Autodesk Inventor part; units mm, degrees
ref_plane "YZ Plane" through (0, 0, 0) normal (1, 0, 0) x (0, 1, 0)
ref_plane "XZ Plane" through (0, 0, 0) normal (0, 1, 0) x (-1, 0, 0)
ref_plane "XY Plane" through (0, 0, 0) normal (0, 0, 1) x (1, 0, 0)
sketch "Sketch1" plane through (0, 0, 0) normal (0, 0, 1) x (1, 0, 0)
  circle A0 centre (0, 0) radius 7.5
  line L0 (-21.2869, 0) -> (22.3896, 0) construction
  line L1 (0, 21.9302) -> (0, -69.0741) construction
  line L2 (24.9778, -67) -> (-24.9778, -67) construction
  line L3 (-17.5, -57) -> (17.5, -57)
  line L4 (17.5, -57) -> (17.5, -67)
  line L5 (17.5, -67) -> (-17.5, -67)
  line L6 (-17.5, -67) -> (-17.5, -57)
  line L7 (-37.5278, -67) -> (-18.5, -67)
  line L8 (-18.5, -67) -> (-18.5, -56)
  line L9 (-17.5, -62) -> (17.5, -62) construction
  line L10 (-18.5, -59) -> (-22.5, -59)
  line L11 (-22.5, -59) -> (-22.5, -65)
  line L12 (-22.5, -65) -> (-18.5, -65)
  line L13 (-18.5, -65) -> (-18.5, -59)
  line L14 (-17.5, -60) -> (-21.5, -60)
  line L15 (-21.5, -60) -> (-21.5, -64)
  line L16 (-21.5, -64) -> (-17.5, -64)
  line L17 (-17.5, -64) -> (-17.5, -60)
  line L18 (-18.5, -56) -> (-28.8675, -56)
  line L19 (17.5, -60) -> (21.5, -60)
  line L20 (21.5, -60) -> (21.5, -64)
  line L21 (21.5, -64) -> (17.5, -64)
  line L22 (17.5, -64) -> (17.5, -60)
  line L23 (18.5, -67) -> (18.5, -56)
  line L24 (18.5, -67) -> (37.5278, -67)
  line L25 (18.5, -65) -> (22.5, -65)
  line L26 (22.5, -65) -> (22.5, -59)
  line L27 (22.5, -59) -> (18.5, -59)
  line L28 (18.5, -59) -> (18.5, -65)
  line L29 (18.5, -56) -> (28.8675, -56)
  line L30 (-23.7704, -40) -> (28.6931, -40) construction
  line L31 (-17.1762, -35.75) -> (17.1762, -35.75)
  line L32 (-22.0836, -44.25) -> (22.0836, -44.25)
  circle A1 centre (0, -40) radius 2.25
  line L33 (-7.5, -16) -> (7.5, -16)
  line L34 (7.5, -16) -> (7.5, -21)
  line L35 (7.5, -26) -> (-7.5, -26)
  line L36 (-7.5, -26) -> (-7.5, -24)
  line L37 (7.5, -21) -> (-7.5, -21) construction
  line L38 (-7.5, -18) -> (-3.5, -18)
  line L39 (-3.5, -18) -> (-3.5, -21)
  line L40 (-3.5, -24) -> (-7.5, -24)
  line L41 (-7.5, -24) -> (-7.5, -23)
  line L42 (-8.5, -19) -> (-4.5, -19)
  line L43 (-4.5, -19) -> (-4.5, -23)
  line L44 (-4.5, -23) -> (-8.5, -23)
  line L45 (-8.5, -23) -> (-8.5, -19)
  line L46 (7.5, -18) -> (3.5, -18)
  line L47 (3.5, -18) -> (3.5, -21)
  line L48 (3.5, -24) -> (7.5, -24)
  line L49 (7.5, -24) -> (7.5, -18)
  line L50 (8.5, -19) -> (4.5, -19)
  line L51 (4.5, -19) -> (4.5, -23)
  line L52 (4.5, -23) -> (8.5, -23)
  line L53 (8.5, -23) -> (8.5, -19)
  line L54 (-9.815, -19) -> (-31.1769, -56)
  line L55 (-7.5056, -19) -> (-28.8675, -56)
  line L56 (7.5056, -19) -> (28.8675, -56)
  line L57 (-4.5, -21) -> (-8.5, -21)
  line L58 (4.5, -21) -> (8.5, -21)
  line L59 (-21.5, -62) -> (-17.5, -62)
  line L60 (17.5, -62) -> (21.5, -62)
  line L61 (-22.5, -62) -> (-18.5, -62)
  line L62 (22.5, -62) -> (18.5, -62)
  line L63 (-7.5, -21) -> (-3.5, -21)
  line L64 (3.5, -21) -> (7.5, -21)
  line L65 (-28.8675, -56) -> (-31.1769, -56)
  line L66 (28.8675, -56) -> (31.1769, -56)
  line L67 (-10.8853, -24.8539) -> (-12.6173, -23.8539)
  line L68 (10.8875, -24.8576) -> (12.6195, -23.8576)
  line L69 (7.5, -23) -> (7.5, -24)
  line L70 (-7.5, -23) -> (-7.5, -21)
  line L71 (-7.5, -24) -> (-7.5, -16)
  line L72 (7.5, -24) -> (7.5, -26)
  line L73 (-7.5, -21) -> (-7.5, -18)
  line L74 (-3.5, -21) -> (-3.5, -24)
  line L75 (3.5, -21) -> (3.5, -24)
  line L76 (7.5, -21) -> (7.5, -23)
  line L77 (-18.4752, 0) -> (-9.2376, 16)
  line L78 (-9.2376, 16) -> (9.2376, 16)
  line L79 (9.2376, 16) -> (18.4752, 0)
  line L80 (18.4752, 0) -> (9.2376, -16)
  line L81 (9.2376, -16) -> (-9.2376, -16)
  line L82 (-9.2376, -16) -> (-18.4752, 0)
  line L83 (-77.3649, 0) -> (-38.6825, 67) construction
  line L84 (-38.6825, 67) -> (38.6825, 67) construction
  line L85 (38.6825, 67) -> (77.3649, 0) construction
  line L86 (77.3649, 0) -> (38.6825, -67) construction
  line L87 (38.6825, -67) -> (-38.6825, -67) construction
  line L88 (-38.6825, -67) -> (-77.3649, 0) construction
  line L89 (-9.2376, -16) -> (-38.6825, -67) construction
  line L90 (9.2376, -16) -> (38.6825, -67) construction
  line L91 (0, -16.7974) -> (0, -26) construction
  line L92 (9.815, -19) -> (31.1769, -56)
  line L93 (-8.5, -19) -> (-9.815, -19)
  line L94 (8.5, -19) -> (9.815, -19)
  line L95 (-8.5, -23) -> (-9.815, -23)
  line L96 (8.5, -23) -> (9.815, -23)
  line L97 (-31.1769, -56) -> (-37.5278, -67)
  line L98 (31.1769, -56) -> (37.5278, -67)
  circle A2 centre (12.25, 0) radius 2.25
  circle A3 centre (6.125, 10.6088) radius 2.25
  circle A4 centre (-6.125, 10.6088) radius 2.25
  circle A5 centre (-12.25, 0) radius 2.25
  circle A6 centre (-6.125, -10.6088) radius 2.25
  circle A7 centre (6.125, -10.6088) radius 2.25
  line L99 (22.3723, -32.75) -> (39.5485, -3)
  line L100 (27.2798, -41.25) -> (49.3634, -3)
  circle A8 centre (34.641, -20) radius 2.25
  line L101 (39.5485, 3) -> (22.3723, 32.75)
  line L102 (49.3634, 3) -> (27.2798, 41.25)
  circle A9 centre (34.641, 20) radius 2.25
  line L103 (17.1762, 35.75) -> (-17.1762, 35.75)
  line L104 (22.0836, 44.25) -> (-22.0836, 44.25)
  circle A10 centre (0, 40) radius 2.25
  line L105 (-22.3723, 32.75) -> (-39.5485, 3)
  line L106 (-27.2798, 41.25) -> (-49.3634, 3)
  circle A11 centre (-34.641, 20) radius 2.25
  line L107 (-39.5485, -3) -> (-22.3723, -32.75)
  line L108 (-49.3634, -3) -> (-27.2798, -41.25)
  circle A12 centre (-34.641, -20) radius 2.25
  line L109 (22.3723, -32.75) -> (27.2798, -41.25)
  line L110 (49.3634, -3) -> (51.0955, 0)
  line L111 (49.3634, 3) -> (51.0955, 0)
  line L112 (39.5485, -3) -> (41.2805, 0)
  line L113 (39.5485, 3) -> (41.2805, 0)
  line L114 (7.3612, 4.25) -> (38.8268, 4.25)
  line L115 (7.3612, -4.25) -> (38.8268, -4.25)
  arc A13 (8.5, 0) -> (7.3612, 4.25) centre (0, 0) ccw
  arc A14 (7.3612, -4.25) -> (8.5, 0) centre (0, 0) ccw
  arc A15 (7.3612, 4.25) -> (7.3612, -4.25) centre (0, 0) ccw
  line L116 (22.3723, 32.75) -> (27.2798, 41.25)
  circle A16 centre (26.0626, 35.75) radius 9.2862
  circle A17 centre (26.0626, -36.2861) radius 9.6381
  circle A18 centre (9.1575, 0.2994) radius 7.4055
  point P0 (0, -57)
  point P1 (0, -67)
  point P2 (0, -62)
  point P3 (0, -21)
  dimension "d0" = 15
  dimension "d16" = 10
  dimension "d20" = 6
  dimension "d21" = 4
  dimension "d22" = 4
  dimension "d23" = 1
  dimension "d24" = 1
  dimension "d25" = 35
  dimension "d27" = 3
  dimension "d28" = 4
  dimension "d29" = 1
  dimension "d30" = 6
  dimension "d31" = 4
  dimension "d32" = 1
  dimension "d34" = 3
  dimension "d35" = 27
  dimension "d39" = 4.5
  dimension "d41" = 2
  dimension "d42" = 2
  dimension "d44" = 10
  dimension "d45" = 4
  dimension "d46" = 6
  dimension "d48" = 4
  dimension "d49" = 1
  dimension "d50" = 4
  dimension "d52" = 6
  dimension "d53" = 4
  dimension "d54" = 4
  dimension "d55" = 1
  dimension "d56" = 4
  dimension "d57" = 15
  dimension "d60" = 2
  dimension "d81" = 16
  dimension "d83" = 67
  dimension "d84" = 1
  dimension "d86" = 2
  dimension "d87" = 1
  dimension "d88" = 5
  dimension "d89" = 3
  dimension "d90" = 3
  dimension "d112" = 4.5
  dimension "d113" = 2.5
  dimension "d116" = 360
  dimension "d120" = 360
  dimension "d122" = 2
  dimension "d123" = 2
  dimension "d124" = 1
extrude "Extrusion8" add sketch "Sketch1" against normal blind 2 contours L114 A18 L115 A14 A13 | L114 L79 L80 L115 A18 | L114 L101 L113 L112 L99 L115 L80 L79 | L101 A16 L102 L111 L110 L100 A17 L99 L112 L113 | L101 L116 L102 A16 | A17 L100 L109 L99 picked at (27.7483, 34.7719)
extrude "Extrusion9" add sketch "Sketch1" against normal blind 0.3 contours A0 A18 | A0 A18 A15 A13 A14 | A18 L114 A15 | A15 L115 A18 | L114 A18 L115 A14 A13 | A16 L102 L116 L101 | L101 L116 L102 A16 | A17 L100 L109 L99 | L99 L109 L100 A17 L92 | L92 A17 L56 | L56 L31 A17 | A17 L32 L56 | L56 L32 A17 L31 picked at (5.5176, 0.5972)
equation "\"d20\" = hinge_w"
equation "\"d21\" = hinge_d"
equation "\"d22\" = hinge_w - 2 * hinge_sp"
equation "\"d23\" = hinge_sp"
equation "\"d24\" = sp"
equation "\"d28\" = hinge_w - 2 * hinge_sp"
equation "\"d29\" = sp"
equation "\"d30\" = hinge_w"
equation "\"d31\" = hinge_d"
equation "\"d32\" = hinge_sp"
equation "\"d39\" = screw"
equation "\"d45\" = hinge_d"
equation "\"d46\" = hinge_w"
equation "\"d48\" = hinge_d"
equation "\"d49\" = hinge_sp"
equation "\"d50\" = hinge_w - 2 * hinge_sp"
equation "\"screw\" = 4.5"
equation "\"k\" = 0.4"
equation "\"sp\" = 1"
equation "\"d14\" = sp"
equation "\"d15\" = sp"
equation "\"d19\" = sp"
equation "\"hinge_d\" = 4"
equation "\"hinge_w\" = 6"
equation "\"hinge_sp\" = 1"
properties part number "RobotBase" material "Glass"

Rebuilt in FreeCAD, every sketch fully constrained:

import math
import FreeCAD as App
import Part
import Sketcher

V = App.Vector
Q = App.Units.Quantity

doc = App.newDocument("Part")
body = doc.addObject("PartDesign::Body", "Body")

# Sketch on XY plane
sketch1 = doc.addObject("Sketcher::SketchObject", "Sketch")
body.addObject(sketch1)
sketch1.AttachmentSupport = (doc.XY_Plane, [""])
sketch1.MapMode = "FlatFace"
sketch1.addGeometry([
    Part.ArcOfCircle(Part.Circle(V(0, 0, 0), V(0, 0, 1), 8.499986), math.radians(0), math.radians(30.000054)),  # 0
    Part.ArcOfCircle(Part.Circle(V(0, 0, 0), V(0, 0, 1), 8.5), math.radians(-30.000054), math.radians(0)),  # 1
    Part.LineSegment(V(7.3612, -4.25, 0), V(38.8268, -4.25, 0)),  # 2
    Part.LineSegment(V(38.8268, -4.25, 0), V(22.3723, -32.75, 0)),  # 3
    Part.LineSegment(V(22.3723, -32.75, 0), V(27.2798, -41.25, 0)),  # 4
    Part.LineSegment(V(27.2798, -41.25, 0), V(49.3634, -3, 0)),  # 5
    Part.LineSegment(V(49.3634, -3, 0), V(51.0955, 0, 0)),  # 6
    Part.LineSegment(V(51.0955, 0, 0), V(49.3634, 3, 0)),  # 7
    Part.LineSegment(V(49.3634, 3, 0), V(27.2798, 41.25, 0)),  # 8
    Part.LineSegment(V(27.2798, 41.25, 0), V(22.3723, 32.75, 0)),  # 9
    Part.LineSegment(V(22.3723, 32.75, 0), V(38.8268, 4.25, 0)),  # 10
    Part.LineSegment(V(38.8268, 4.25, 0), V(7.3612, 4.25, 0)),  # 11
    Part.Circle(V(12.25, 0, 0), V(0, 0, 1), 2.25),  # 12
    Part.Circle(V(34.641, -20, 0), V(0, 0, 1), 2.25),  # 13
    Part.Circle(V(34.641, 20, 0), V(0, 0, 1), 2.25),  # 14
], False)
sketch1.addConstraint([
    Sketcher.Constraint("Tangent", 0, 1, 1, 2),
    Sketcher.Constraint("Coincident", 1, 1, 2, 1),
    Sketcher.Constraint("Coincident", 2, 2, 3, 1),
    Sketcher.Constraint("Coincident", 3, 2, 4, 1),
    Sketcher.Constraint("Coincident", 4, 2, 5, 1),
    Sketcher.Constraint("Coincident", 5, 2, 6, 1),
    Sketcher.Constraint("Coincident", 6, 2, 7, 1),
    Sketcher.Constraint("Coincident", 7, 2, 8, 1),
    Sketcher.Constraint("Coincident", 8, 2, 9, 1),
    Sketcher.Constraint("Coincident", 9, 2, 10, 1),
    Sketcher.Constraint("Coincident", 10, 2, 11, 1),
    Sketcher.Constraint("Coincident", 11, 2, 0, 2),
    Sketcher.Constraint("Horizontal", 2),
    Sketcher.Constraint("Horizontal", 11),
    Sketcher.Constraint("Coincident", 0, 3, -1, 1),
    Sketcher.Constraint("Equal", 0, 1),
    Sketcher.Constraint("Equal", 12, 13),
    Sketcher.Constraint("Equal", 13, 14),
    Sketcher.Constraint("Symmetric", 13, 3, 14, 3, -1),
    Sketcher.Constraint("Symmetric", 5, 2, 7, 2, -1),
    Sketcher.Constraint("Symmetric", 4, 2, 8, 2, -1),
    Sketcher.Constraint("Symmetric", 3, 2, 9, 2, -1),
    Sketcher.Constraint("Symmetric", 2, 2, 10, 2, -1),
    Sketcher.Constraint("PointOnObject", 12, 3, -1),
    Sketcher.Constraint("PointOnObject", 0, 1, -1),
    Sketcher.Constraint("PointOnObject", 6, 2, -1),
    Sketcher.Constraint("Parallel", 3, 5),
    Sketcher.Constraint("Parallel", 5, 6),
    Sketcher.Constraint("Parallel", 4, 7),
    Sketcher.Constraint("Diameter", 12, Q("4.5 mm")),
    Sketcher.Constraint("DistanceY", 5, 2, -1, 1, Q("3 mm")),
    Sketcher.Constraint("Radius", 0, Q("8.5 mm")),
    Sketcher.Constraint("Angle", 3, Q("-120 deg")),
    Sketcher.Constraint("DistanceY", 13, 3, -1, 1, Q("20 mm")),
    Sketcher.Constraint("DistanceY", 4, 2, 2, 2, Q("37 mm")),
    Sketcher.Constraint("DistanceY", 3, 2, 1, 1, Q("28.5 mm")),
    Sketcher.Constraint("DistanceY", 2, 2, 8, 2, Q("45.5 mm")),
    Sketcher.Constraint("DistanceX", -1, 1, 12, 3, Q("12.25 mm")),
    Sketcher.Constraint("DistanceX", 2, 1, 2, 2, Q("31.4656 mm")),
    Sketcher.Constraint("DistanceX", -1, 1, 13, 3, Q("34.641 mm")),
])
pad1 = doc.addObject("PartDesign::Pad", "Pad")
body.addObject(pad1)
pad1.Profile = sketch1
pad1.Length = 2
pad1.Reversed = True

# Sketch on XY plane
sketch2 = doc.addObject("Sketcher::SketchObject", "Sketch001")
body.addObject(sketch2)
sketch2.AttachmentSupport = (doc.XY_Plane, [""])
sketch2.MapMode = "FlatFace"
sketch2.addGeometry([
    Part.Circle(V(9.1575, 0.2994, 0), V(0, 0, 1), 7.4055),
    Part.Circle(V(12.25, 0, 0), V(0, 0, 1), 2.25),
    Part.Circle(V(26.0626, 35.75, 0), V(0, 0, 1), 9.2862),
    Part.Circle(V(26.0626, -36.2861, 0), V(0, 0, 1), 9.6381),
], False)
sketch2.addConstraint([
    Sketcher.Constraint("PointOnObject", 1, 3, -1),
    Sketcher.Constraint("Vertical", 2, 3, 3, 3),
    Sketcher.Constraint("Diameter", 1, Q("4.5 mm")),
    Sketcher.Constraint("Diameter", 0, Q("14.811 mm")),
    Sketcher.Constraint("Diameter", 2, Q("18.5724 mm")),
    Sketcher.Constraint("Diameter", 3, Q("19.2762 mm")),
    Sketcher.Constraint("DistanceX", -1, 1, 1, 3, Q("12.25 mm")),
    Sketcher.Constraint("DistanceY", -1, 1, 2, 3, Q("35.75 mm")),
    Sketcher.Constraint("DistanceY", 3, 3, -1, 1, Q("36.286 mm")),
    Sketcher.Constraint("DistanceX", 0, 3, 2, 3, Q("16.905 mm")),
    Sketcher.Constraint("DistanceX", -1, 1, 0, 3, Q("9.1575 mm")),
    Sketcher.Constraint("DistanceY", -1, 1, 0, 3, Q("0.2994 mm")),
])
pad2 = doc.addObject("PartDesign::Pad", "Pad001")
body.addObject(pad2)
pad2.Profile = sketch2
pad2.Length = 0.3
pad2.Reversed = True

doc.recompute()
